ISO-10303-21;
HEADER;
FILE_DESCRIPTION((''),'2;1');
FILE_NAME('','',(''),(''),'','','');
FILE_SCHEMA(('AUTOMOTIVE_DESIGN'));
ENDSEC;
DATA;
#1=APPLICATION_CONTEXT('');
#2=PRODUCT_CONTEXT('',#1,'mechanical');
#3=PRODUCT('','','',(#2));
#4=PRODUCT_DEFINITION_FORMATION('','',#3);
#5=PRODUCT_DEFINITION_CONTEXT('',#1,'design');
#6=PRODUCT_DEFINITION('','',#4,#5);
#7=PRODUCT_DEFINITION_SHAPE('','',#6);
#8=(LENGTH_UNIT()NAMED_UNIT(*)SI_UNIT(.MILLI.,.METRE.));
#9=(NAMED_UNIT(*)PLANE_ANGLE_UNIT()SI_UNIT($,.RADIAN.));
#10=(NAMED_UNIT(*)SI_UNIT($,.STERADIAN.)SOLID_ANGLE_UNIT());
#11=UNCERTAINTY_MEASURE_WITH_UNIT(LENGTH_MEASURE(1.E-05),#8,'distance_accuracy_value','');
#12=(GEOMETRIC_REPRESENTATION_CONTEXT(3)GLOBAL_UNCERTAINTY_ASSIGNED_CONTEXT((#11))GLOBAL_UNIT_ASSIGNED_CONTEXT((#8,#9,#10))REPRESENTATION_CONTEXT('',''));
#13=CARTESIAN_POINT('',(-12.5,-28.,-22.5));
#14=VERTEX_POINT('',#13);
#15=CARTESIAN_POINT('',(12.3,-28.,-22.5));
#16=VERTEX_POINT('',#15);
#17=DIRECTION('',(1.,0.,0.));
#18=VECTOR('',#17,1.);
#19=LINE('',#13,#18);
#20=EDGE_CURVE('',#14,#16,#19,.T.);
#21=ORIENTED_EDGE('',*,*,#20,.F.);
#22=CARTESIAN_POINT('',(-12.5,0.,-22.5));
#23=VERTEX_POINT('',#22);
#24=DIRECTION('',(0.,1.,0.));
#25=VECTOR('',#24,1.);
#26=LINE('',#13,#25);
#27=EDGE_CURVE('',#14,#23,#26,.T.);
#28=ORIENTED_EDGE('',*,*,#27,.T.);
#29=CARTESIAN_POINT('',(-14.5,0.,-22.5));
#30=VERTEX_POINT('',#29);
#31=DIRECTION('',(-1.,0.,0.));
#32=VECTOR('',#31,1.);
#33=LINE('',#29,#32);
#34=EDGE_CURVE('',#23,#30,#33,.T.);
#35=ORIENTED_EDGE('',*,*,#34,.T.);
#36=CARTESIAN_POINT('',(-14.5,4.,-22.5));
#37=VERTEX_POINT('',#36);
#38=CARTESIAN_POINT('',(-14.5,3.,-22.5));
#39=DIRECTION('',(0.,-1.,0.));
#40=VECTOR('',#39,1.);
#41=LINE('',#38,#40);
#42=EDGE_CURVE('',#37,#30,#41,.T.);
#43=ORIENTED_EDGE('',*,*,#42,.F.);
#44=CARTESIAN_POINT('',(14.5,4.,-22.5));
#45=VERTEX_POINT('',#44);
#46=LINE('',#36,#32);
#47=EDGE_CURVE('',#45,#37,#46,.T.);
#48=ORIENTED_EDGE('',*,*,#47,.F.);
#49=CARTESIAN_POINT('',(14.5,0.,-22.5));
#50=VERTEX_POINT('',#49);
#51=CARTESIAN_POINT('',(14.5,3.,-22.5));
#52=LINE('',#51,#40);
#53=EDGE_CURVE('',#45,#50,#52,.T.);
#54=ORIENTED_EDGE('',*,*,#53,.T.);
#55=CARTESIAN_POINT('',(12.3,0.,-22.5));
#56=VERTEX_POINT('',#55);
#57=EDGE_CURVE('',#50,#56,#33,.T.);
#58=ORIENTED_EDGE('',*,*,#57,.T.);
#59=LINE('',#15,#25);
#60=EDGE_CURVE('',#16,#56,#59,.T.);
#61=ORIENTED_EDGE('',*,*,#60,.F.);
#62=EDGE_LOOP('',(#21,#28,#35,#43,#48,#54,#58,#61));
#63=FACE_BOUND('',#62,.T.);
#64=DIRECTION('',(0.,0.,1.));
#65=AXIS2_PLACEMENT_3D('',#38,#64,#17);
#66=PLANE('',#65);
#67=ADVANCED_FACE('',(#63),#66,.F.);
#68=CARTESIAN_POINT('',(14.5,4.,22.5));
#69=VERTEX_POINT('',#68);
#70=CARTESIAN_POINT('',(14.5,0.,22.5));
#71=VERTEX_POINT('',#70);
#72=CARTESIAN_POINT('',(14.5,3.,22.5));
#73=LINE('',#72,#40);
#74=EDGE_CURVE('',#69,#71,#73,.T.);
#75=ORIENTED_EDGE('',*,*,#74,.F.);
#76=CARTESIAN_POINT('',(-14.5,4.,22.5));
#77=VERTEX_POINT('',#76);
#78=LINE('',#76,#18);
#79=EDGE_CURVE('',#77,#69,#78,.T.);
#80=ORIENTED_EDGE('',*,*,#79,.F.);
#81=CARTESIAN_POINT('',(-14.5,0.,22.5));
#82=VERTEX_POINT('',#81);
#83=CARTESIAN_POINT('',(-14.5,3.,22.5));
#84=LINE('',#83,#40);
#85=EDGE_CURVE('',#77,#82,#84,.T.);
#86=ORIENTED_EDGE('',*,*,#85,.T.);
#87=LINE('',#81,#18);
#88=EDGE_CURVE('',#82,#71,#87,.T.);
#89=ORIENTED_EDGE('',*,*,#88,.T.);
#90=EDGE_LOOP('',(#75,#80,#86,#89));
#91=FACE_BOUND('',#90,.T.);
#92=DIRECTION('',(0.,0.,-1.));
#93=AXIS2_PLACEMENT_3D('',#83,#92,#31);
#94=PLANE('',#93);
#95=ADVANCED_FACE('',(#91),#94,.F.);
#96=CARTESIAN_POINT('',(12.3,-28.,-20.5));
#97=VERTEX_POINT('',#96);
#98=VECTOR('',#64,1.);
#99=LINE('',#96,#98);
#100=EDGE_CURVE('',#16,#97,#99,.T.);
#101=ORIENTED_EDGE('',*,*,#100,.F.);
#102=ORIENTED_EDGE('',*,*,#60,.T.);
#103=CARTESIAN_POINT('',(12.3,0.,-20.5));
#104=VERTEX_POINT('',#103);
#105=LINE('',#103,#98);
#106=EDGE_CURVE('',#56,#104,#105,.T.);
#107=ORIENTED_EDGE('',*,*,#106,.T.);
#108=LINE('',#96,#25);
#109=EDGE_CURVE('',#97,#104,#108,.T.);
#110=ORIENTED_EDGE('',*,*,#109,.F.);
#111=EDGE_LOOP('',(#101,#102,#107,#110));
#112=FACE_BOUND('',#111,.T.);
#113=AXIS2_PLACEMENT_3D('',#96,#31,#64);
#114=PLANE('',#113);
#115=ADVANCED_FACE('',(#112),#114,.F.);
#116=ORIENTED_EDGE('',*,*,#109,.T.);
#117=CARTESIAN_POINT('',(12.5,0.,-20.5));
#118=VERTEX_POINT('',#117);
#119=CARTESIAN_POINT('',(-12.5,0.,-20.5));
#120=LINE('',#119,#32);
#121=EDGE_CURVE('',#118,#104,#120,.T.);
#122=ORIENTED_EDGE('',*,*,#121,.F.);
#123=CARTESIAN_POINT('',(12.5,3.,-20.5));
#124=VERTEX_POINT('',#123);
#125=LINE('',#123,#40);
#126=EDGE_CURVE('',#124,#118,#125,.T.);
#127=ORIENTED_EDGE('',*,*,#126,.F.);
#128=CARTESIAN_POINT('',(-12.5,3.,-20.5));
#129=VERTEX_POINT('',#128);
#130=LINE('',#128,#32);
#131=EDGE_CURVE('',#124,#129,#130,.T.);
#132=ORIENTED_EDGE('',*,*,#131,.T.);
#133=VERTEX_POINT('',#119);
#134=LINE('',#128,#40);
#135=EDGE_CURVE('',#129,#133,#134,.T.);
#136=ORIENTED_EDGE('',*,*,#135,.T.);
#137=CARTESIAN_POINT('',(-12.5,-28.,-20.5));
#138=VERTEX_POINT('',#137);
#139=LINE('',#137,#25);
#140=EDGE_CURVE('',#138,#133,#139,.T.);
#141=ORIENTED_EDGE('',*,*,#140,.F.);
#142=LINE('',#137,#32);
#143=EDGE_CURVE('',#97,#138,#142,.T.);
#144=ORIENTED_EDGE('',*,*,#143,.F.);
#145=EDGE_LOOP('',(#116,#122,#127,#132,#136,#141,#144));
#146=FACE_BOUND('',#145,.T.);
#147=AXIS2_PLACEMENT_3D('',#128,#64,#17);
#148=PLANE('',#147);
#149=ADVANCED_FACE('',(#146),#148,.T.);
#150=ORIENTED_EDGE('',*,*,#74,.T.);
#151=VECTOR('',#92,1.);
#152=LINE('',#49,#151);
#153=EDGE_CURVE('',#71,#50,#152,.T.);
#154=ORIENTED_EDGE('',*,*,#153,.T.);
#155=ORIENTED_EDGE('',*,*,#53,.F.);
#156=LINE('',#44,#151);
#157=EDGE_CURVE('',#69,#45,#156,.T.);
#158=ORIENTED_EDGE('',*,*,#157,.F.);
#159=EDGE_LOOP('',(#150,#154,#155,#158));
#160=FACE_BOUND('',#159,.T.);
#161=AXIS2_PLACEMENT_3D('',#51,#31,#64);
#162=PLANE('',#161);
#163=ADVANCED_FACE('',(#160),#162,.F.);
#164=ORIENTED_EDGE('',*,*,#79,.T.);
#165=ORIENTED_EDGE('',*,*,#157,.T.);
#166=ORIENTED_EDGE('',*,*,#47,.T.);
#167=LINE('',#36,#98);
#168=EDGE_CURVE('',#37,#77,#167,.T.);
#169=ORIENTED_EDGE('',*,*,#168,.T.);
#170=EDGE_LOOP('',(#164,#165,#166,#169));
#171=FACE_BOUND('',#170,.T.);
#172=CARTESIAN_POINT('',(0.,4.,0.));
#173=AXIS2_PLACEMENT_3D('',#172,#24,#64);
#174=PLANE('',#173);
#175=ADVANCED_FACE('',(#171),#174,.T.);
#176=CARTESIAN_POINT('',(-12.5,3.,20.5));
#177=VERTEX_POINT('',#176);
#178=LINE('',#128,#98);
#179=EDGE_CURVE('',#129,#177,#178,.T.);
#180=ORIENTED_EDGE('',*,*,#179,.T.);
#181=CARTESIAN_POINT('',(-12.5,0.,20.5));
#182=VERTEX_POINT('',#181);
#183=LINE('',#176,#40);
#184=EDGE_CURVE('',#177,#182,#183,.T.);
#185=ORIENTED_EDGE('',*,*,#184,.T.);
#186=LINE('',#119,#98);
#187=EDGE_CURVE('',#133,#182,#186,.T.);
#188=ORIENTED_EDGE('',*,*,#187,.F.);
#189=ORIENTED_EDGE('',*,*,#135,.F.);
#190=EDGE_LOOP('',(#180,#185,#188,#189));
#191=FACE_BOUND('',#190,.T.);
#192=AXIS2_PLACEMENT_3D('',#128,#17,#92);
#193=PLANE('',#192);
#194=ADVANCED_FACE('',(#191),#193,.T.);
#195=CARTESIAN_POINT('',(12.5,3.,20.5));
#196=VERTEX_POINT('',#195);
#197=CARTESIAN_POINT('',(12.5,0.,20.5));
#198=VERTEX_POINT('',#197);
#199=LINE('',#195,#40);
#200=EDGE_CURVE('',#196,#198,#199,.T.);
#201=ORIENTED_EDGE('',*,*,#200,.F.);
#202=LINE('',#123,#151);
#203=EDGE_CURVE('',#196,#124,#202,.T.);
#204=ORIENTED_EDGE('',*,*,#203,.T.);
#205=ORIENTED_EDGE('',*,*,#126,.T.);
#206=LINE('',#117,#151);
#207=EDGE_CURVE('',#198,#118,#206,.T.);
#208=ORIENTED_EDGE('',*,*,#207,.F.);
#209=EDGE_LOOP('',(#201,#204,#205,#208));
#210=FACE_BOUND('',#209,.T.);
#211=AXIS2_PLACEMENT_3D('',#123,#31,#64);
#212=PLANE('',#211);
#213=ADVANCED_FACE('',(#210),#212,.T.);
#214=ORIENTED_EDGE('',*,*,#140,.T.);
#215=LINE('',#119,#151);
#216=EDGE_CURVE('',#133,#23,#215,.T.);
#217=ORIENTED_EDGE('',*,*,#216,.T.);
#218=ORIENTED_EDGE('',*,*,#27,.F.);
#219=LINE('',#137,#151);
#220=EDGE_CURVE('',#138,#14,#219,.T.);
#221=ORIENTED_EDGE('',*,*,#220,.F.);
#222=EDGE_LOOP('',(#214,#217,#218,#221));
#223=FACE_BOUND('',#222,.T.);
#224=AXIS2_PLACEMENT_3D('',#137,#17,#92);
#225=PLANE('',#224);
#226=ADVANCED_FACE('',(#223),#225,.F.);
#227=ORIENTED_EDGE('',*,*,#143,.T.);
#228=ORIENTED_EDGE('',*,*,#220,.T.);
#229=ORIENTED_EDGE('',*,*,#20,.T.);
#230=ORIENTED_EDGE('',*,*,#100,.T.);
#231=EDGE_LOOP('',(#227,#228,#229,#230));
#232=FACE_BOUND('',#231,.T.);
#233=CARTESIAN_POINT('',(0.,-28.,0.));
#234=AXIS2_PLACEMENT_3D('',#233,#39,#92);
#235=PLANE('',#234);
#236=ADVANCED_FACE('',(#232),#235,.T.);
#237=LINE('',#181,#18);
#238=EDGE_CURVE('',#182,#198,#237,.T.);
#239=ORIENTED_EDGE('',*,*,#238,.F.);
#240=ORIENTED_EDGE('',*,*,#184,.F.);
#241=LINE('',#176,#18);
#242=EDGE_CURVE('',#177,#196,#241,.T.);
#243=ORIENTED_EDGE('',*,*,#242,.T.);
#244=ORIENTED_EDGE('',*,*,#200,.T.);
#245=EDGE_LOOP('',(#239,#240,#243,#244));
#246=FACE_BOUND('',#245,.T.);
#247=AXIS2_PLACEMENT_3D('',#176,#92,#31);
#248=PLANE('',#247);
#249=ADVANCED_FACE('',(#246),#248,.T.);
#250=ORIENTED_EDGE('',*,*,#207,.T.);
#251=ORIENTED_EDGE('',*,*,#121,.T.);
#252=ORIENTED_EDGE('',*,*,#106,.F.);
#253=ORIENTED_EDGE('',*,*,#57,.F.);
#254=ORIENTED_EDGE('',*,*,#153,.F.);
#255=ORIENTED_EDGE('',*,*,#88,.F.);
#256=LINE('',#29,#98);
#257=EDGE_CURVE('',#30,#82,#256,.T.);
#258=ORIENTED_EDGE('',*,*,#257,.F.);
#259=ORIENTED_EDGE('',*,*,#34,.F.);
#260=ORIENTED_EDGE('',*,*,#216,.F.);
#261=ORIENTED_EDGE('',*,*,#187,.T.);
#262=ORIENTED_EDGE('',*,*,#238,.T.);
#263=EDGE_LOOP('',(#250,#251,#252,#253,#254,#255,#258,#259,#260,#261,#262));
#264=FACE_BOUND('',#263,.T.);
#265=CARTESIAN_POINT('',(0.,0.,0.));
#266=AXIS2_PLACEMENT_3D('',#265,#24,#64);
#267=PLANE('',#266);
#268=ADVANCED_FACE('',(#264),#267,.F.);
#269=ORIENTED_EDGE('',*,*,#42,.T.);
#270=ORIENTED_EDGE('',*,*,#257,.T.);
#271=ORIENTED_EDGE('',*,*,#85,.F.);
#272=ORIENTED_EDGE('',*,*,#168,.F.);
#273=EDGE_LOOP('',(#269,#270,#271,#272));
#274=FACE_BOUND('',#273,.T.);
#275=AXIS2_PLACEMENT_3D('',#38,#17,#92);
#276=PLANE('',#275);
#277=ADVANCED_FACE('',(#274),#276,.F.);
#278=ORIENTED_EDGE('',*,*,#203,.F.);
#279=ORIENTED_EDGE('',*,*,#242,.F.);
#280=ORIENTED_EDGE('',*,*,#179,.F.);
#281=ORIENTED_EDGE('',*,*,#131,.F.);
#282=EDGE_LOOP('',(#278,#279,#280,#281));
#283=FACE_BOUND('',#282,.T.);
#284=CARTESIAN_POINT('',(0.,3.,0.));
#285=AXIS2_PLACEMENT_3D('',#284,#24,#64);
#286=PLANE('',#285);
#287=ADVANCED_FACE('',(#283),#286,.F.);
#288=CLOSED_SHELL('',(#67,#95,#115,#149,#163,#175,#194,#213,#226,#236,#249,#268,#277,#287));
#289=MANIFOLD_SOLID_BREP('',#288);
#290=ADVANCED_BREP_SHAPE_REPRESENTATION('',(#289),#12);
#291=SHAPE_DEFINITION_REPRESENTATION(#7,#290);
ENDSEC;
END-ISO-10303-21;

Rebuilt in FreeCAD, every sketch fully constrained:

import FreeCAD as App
import Part
import Sketcher


def add_polygon(sketch, points):
    """Adds a closed chain of lines whose ends are joined by coincident constraints."""
    first, n = sketch.GeometryCount, len(points)
    for a, b in zip(points, points[1:] + points[:1]):
        sketch.addGeometry(Part.LineSegment(App.Vector(*a, 0), App.Vector(*b, 0)), False)
    for i in range(n):
        sketch.addConstraint(Sketcher.Constraint("Coincident", first + i, 2, first + (i + 1) % n, 1))

doc = App.newDocument("Part")
body = doc.addObject("PartDesign::Body", "Body")

# Sketch on XZ plane
sketch1 = body.newObject("Sketcher::SketchObject", "Sketch")
sketch1.AttachmentSupport = (doc.getObject("XZ_Plane"), [""])
sketch1.MapMode = "FlatFace"
add_polygon(sketch1, [(-14, -22), (-14, 22), (14, 22), (14, -22)])  # lines 0-3
add_polygon(sketch1, [(12, 20), (-12, 20), (-12, -20), (12, -20)])  # lines 4-7
sketch1.addConstraint(Sketcher.Constraint("Vertical", 0))
sketch1.addConstraint(Sketcher.Constraint("Horizontal", 1))
sketch1.addConstraint(Sketcher.Constraint("Vertical", 2))
sketch1.addConstraint(Sketcher.Constraint("Horizontal", 3))
sketch1.addConstraint(Sketcher.Constraint("Horizontal", 4))
sketch1.addConstraint(Sketcher.Constraint("Vertical", 5))
sketch1.addConstraint(Sketcher.Constraint("Horizontal", 6))
sketch1.addConstraint(Sketcher.Constraint("Vertical", 7))
sketch1.addConstraint(Sketcher.Constraint("Symmetric", 0, 2, 2, 2, -1, 1))
sketch1.addConstraint(Sketcher.Constraint("Symmetric", 4, 2, 6, 2, -1, 1))
sketch1.addConstraint(Sketcher.Constraint("DistanceX", 1, 1, 1, 2, 29.0))
sketch1.addConstraint(Sketcher.Constraint("DistanceX", 4, 2, 4, 1, 25.0))
sketch1.addConstraint(Sketcher.Constraint("DistanceY", 0, 1, 0, 2, 45.0))
sketch1.addConstraint(Sketcher.Constraint("DistanceY", 5, 2, 5, 1, 41.0))
pad1 = body.newObject("PartDesign::Pad", "Pad")
pad1.Profile = sketch1
pad1.Length = 3
pad1.Reversed = True

# Sketch on XZ plane
sketch2 = body.newObject("Sketcher::SketchObject", "Sketch001")
sketch2.AttachmentSupport = (doc.getObject("XZ_Plane"), [""])
sketch2.MapMode = "FlatFace"
sketch2.AttachmentOffset = App.Placement(App.Vector(0, 0, -3), App.Rotation())
add_polygon(sketch2, [(-14, -22), (-14, 22), (14, 22), (14, -22)])  # lines 0-3
sketch2.addConstraint(Sketcher.Constraint("Vertical", 0))
sketch2.addConstraint(Sketcher.Constraint("Horizontal", 1))
sketch2.addConstraint(Sketcher.Constraint("Vertical", 2))
sketch2.addConstraint(Sketcher.Constraint("Horizontal", 3))
sketch2.addConstraint(Sketcher.Constraint("Symmetric", 0, 2, 2, 2, -1, 1))
sketch2.addConstraint(Sketcher.Constraint("DistanceX", 1, 1, 1, 2, 29.0))
sketch2.addConstraint(Sketcher.Constraint("DistanceY", 0, 1, 0, 2, 45.0))
pad2 = body.newObject("PartDesign::Pad", "Pad001")
pad2.Profile = sketch2
pad2.Length = 1
pad2.Reversed = True

# Sketch on XZ plane
sketch3 = body.newObject("Sketcher::SketchObject", "Sketch002")
sketch3.AttachmentSupport = (doc.getObject("XZ_Plane"), [""])
sketch3.MapMode = "FlatFace"
add_polygon(sketch3, [(12.3, -22.5), (12.3, -20.5), (-12.5, -20.5), (-12.5, -22.5)])  # lines 0-3
sketch3.addConstraint(Sketcher.Constraint("Vertical", 0))
sketch3.addConstraint(Sketcher.Constraint("Horizontal", 1))
sketch3.addConstraint(Sketcher.Constraint("Vertical", 2))
sketch3.addConstraint(Sketcher.Constraint("Horizontal", 3))
sketch3.addConstraint(Sketcher.Constraint("DistanceY", 0, 1, 0, 2, 2.0))
sketch3.addConstraint(Sketcher.Constraint("DistanceX", 1, 2, 1, 1, 24.8))
sketch3.addConstraint(Sketcher.Constraint("DistanceX", -1, 1, 0, 2, 12.3))
sketch3.addConstraint(Sketcher.Constraint("DistanceY", 0, 2, -1, 1, 20.5))
pad3 = body.newObject("PartDesign::Pad", "Pad002")
pad3.Profile = sketch3
pad3.Length = 28

doc.recompute()
